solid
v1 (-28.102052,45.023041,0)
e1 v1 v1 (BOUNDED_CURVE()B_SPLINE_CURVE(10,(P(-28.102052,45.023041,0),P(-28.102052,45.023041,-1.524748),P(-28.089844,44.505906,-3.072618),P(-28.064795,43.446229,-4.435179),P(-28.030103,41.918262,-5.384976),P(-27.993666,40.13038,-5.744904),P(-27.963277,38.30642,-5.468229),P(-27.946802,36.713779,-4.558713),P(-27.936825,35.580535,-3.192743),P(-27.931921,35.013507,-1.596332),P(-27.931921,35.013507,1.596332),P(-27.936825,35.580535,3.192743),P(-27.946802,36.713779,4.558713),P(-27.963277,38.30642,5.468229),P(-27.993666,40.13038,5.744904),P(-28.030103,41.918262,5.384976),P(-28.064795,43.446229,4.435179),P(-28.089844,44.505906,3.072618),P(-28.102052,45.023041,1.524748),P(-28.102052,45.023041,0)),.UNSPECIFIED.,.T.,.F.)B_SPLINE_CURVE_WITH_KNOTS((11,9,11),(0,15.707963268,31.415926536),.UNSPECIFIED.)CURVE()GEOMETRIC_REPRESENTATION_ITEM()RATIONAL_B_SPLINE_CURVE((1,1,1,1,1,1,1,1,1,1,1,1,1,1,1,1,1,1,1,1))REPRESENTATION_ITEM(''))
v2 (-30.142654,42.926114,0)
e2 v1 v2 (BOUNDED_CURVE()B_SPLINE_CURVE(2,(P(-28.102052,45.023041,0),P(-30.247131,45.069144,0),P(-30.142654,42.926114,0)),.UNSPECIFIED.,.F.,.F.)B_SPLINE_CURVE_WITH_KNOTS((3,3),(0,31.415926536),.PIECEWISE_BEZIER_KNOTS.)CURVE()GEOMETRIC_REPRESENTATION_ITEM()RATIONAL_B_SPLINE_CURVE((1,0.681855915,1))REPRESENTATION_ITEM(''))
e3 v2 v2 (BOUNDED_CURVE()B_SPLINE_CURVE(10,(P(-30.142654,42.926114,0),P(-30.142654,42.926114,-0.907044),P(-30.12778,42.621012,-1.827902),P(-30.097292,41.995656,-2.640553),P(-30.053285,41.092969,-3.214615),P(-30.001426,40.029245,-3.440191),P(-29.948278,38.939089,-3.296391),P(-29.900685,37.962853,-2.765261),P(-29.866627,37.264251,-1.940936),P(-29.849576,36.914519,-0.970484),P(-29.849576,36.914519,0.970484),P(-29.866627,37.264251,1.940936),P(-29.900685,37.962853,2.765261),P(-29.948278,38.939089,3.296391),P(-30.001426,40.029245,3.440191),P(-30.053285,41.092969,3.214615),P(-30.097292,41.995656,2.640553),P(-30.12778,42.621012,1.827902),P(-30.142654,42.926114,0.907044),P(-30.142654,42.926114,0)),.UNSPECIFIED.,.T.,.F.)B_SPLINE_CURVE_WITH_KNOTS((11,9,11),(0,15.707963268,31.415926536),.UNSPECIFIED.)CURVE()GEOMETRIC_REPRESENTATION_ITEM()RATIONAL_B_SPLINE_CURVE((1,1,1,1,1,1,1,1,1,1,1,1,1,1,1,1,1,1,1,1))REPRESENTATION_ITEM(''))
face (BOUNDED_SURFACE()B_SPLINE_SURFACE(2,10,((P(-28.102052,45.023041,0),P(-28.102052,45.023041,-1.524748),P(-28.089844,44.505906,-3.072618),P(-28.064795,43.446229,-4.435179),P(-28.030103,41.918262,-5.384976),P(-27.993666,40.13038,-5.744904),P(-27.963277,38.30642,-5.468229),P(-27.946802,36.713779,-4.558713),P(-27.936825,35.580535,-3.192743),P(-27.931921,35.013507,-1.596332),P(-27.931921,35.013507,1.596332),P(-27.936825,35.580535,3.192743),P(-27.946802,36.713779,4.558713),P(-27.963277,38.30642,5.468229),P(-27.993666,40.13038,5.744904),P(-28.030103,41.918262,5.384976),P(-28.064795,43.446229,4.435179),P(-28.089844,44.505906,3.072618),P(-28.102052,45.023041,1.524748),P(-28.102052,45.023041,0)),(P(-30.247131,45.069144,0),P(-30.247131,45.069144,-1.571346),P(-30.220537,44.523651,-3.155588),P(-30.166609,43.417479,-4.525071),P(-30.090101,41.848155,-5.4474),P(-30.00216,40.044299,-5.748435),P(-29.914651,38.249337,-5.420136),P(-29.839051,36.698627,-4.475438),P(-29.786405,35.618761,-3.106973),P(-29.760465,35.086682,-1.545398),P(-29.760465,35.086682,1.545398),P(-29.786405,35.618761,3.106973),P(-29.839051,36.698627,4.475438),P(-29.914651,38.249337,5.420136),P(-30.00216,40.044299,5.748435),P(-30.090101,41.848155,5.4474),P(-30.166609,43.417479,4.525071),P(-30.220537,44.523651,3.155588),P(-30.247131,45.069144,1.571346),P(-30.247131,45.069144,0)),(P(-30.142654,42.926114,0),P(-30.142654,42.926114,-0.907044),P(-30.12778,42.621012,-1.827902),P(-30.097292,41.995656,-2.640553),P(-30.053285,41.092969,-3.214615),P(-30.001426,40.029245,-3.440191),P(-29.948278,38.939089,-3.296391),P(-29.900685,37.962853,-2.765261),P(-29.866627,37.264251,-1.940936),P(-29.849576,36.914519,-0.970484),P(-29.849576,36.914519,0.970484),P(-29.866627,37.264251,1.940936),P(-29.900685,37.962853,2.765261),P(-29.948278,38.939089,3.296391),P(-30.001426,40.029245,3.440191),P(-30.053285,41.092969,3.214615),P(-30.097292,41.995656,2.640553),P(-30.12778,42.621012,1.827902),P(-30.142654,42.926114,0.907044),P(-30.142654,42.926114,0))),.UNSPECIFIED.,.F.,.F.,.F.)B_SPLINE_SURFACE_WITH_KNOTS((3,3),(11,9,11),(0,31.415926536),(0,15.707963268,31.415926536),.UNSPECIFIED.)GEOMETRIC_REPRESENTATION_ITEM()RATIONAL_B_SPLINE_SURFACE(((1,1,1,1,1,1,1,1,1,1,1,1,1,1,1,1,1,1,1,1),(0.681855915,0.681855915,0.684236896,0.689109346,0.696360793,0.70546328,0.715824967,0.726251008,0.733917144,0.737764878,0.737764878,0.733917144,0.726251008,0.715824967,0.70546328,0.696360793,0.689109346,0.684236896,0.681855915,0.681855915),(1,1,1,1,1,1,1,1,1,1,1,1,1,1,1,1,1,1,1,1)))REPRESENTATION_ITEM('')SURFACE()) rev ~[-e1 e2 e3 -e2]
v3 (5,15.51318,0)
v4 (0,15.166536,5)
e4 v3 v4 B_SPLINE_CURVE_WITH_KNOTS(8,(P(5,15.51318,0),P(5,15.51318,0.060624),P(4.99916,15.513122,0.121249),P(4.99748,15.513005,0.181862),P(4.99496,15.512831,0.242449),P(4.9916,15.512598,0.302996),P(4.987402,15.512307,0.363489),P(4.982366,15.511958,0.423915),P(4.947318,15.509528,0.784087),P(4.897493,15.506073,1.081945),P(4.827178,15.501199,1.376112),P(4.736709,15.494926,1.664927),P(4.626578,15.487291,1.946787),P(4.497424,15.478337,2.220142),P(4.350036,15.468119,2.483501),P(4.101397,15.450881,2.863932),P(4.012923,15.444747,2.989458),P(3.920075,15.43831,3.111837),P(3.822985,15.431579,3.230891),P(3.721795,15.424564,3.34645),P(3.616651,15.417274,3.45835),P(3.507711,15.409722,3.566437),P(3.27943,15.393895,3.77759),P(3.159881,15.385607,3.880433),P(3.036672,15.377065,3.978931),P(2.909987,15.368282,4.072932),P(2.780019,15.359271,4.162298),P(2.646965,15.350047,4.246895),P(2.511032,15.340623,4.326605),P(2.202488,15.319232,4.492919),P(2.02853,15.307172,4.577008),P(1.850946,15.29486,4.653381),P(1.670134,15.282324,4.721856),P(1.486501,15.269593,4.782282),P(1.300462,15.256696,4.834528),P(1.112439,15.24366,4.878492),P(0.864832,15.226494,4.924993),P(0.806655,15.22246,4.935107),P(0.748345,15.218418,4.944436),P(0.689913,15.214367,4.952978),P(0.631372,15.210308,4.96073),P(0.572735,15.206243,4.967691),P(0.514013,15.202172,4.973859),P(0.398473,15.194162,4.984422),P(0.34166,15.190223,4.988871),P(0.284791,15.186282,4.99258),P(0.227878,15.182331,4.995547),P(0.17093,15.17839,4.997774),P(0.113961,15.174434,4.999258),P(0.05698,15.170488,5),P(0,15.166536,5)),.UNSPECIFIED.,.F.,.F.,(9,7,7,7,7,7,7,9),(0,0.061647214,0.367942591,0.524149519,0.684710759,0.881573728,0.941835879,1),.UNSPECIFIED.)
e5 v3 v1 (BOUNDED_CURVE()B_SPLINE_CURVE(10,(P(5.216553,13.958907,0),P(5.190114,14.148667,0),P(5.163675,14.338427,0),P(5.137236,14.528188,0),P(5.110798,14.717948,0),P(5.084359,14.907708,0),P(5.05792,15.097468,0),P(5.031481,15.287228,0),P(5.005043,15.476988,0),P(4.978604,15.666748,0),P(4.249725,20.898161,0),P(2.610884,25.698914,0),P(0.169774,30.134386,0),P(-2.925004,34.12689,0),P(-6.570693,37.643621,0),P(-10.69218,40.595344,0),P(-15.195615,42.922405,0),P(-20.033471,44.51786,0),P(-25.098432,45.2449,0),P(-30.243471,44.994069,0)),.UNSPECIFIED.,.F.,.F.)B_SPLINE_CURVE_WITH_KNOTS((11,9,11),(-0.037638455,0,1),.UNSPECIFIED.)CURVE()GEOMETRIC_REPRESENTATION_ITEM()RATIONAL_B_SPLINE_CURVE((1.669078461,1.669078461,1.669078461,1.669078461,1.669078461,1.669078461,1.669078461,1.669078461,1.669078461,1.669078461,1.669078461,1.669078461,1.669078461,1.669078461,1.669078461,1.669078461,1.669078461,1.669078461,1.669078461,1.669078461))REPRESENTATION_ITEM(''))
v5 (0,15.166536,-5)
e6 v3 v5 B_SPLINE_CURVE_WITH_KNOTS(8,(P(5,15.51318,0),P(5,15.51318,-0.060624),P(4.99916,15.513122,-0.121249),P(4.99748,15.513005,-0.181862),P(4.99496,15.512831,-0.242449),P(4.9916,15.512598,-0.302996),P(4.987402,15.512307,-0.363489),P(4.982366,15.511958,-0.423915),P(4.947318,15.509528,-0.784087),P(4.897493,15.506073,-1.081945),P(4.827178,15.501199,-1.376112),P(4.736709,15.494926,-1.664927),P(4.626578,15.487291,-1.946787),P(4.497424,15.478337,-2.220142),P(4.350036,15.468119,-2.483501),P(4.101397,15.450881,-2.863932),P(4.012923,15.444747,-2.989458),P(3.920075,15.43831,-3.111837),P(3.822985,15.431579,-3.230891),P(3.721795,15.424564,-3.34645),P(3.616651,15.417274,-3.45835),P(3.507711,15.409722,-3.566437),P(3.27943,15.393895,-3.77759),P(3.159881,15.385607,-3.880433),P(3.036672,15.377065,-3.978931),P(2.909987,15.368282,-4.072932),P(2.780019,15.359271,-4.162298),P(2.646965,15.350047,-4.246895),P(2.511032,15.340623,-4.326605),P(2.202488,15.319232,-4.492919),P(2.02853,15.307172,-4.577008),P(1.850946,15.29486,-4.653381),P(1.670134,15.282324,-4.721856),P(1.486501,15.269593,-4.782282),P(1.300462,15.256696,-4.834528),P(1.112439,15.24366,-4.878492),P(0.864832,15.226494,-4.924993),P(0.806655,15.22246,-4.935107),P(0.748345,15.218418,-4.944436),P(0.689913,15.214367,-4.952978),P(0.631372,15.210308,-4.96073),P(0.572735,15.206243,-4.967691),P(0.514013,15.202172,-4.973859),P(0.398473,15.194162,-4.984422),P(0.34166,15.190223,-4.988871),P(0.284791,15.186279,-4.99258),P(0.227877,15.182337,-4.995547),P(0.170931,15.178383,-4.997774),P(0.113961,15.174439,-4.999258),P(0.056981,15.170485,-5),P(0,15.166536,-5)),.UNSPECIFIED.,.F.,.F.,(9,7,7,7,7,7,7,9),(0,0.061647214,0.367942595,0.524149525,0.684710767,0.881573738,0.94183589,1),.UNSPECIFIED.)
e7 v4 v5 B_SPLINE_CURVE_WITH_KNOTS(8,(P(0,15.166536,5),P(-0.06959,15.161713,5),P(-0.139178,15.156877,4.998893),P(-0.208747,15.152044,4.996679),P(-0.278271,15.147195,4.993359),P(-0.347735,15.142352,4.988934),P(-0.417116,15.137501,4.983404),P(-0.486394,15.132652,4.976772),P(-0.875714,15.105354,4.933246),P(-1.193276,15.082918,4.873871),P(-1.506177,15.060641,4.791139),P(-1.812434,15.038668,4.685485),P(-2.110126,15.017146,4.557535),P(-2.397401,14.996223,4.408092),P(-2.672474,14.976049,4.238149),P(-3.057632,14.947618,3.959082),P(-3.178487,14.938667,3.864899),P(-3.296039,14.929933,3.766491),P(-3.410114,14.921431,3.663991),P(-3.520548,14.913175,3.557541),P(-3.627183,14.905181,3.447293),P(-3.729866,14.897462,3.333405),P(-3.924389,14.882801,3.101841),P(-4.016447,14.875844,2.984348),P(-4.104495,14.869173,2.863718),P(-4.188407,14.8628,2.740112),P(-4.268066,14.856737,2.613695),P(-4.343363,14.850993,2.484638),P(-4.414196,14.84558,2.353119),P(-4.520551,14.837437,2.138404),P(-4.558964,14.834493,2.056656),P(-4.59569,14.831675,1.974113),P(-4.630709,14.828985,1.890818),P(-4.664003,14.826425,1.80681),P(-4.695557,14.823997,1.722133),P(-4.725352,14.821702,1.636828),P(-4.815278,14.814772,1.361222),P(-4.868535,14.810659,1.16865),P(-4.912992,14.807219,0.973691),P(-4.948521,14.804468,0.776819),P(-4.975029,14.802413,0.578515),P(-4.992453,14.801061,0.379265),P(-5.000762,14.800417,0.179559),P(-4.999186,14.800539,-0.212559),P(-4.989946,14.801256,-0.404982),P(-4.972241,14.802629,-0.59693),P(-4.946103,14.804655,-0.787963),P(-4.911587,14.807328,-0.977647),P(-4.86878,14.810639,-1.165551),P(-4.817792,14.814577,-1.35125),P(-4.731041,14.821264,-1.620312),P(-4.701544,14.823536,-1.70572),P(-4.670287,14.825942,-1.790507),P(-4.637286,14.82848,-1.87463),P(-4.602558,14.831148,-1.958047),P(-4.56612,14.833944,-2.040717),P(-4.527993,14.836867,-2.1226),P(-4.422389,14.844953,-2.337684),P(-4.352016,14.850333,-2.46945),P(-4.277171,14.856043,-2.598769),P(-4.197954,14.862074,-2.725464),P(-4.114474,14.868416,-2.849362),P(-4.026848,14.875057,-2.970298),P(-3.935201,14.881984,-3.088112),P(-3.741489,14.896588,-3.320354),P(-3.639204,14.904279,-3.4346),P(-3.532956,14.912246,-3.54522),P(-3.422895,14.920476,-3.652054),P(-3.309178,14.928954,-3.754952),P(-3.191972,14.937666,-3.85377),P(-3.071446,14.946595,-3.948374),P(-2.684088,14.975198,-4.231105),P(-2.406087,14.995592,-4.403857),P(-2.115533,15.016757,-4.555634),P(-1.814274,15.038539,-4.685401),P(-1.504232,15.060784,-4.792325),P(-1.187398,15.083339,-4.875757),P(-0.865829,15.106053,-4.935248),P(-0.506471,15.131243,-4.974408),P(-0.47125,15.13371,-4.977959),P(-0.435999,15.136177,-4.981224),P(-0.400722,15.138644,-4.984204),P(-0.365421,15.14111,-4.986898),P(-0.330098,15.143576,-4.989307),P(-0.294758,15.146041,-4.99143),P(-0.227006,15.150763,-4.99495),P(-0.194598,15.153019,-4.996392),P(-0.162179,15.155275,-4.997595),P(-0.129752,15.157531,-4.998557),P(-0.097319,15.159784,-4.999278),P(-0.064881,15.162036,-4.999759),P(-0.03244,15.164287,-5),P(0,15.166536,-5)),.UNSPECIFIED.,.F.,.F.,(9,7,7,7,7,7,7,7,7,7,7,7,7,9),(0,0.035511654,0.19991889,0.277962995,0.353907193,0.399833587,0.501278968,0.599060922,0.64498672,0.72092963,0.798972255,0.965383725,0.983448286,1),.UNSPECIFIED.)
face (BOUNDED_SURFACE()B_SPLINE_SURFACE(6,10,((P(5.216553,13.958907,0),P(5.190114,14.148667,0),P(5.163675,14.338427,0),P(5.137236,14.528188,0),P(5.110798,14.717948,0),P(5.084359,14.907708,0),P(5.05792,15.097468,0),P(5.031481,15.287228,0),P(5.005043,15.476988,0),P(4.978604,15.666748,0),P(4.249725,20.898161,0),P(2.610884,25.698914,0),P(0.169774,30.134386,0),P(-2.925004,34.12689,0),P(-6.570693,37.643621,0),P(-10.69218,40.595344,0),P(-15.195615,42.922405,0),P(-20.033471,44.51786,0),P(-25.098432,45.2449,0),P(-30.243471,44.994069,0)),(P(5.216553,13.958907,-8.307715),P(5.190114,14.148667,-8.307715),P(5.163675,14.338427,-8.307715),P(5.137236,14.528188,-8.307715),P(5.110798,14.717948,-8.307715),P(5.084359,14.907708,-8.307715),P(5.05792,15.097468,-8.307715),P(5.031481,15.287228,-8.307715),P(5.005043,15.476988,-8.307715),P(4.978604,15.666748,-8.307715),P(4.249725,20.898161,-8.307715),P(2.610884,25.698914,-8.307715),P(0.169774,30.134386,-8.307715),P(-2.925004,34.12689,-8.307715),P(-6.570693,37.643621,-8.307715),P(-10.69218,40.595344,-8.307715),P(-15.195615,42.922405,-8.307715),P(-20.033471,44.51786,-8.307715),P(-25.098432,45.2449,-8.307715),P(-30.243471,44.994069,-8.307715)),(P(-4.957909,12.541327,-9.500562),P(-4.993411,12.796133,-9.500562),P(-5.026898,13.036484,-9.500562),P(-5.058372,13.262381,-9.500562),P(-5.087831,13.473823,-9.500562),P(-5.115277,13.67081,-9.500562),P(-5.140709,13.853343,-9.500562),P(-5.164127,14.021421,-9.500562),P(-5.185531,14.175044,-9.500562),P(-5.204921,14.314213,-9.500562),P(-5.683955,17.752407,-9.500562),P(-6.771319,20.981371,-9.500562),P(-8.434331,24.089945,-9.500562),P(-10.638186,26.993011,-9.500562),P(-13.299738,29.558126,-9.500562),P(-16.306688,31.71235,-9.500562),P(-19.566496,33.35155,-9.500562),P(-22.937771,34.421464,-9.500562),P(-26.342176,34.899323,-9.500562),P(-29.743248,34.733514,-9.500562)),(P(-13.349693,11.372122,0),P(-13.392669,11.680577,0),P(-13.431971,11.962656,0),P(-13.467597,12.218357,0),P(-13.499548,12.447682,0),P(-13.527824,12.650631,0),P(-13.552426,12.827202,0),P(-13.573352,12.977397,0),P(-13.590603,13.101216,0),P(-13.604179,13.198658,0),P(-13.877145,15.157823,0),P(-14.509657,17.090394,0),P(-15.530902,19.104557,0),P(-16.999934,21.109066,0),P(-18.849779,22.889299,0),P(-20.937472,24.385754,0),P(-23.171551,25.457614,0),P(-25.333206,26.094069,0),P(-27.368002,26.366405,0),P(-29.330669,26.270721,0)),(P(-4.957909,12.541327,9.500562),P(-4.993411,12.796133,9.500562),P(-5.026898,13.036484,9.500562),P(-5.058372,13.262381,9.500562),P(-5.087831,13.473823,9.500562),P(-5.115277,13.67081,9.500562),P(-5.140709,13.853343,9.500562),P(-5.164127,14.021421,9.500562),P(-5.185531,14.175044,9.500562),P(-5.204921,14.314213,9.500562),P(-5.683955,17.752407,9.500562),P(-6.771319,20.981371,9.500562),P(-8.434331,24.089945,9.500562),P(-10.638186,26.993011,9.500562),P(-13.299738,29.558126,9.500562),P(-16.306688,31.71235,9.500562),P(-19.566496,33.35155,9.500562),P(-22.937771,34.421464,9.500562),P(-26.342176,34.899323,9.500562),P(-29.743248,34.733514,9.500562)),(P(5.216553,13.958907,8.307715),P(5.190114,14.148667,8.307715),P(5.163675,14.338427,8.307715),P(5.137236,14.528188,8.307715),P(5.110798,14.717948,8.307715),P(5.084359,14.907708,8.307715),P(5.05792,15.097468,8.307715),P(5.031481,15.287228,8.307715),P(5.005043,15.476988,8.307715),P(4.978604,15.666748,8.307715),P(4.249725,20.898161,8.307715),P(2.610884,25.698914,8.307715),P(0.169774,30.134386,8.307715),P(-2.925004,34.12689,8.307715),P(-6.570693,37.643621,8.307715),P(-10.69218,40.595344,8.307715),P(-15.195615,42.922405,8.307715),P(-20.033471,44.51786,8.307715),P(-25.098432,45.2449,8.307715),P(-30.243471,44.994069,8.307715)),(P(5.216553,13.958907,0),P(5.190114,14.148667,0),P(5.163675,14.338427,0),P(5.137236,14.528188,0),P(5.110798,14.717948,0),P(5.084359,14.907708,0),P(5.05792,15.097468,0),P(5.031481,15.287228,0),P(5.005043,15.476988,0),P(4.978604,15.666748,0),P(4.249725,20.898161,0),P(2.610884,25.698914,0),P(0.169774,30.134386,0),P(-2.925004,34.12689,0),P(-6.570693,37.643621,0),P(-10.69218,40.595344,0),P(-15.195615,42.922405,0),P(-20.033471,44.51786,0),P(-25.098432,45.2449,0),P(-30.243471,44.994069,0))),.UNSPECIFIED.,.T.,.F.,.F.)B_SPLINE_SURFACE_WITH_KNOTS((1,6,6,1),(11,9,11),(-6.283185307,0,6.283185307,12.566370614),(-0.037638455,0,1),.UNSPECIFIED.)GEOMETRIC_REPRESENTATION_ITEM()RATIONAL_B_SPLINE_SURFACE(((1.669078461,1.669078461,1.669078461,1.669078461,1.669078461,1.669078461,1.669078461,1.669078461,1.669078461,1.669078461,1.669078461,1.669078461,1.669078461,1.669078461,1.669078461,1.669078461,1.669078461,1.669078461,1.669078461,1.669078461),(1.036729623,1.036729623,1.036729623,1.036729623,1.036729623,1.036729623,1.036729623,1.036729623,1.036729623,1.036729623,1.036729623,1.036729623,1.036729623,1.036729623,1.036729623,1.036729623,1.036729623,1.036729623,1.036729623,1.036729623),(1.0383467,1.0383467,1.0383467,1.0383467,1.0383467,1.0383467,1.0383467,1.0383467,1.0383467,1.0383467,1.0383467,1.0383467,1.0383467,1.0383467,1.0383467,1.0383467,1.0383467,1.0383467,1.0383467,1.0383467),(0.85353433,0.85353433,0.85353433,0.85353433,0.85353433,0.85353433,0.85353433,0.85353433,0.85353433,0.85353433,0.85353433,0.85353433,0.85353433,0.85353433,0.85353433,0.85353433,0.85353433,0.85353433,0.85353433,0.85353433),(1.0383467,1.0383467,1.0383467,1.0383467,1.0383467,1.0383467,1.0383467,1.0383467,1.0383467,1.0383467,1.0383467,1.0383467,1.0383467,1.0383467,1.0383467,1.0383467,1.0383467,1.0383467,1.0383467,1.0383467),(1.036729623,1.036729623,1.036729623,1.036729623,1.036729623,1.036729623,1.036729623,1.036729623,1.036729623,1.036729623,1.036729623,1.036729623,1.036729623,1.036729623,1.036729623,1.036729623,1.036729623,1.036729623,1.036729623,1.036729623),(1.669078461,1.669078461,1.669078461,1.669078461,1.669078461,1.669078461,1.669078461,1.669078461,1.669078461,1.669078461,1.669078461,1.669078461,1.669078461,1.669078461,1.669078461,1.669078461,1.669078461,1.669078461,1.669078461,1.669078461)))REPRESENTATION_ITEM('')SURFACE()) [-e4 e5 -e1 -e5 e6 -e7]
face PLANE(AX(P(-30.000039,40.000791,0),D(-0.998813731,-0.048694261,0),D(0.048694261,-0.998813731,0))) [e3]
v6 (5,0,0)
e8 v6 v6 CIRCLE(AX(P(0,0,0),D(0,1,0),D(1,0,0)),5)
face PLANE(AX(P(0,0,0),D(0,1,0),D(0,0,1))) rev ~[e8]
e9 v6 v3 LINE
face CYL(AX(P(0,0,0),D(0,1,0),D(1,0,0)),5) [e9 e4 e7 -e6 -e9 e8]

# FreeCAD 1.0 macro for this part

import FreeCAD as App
import Part
import Sketcher
from FreeCAD import Vector


def edges_at(feature, points):
    """Names of the edges that pass closest to the given points."""
    edges = feature.Shape.Edges
    near = lambda p: min(range(len(edges)), key=lambda i: edges[i].distToShape(Part.Vertex(*p))[0])
    return sorted({f"Edge{near(p) + 1}" for p in points})

doc = App.newDocument("Part")
body = doc.addObject("PartDesign::Body", "Body")

sketch1 = body.newObject("Sketcher::SketchObject", "Sketch")
sketch1.AttachmentSupport = (doc.getObject("XZ_Plane"), [""])
sketch1.MapMode = "FlatFace"
sketch1.addGeometry(Part.Circle(Vector(0, 0, 0), Vector(0, 0, 1), 5), False)
sketch1.addConstraint([
    Sketcher.Constraint("Coincident", 0, 3, -1, 1),
    Sketcher.Constraint("Diameter", 0, 10.0),
])

sketch2 = body.newObject("Sketcher::SketchObject", "Sketch001")
sketch2.AttachmentSupport = (doc.getObject("XY_Plane"), [""])
sketch2.MapMode = "FlatFace"
sketch2.addGeometry([
    Part.LineSegment(Vector(0, 0, 0), Vector(0, 15.166536, 0)),
    Part.BSplineCurve([Vector(0, 15.166536, 0), Vector(-1.950818, 29.168229, 0), Vector(-15.679312, 40.698164, 0), Vector(-30, 40, 0)], [4, 4], [0, 1], False, 3, [1, 1, 1, 1], False),
], False)
sketch2.addConstraint([
    Sketcher.Constraint("Block", 1),
    Sketcher.Constraint("Coincident", 0, 2, 1, 1),
    Sketcher.Constraint("Vertical", 0),
    Sketcher.Constraint("DistanceY", 0, 1, 0, 2, 15.166536),
])
doc.recompute()

additivepipe = body.newObject("PartDesign::AdditivePipe", "AdditivePipe")
additivepipe.Profile = sketch1
additivepipe.Spine = (sketch2, ["Edge1", "Edge2"])
additivepipe.Transition = "Right corner"
doc.recompute()

fillet = body.newObject("PartDesign::Fillet", "Fillet")
fillet.Base = (additivepipe, edges_at(additivepipe, [(-29.757, 35.006, 0)]))
fillet.Radius = 2

doc.recompute()
